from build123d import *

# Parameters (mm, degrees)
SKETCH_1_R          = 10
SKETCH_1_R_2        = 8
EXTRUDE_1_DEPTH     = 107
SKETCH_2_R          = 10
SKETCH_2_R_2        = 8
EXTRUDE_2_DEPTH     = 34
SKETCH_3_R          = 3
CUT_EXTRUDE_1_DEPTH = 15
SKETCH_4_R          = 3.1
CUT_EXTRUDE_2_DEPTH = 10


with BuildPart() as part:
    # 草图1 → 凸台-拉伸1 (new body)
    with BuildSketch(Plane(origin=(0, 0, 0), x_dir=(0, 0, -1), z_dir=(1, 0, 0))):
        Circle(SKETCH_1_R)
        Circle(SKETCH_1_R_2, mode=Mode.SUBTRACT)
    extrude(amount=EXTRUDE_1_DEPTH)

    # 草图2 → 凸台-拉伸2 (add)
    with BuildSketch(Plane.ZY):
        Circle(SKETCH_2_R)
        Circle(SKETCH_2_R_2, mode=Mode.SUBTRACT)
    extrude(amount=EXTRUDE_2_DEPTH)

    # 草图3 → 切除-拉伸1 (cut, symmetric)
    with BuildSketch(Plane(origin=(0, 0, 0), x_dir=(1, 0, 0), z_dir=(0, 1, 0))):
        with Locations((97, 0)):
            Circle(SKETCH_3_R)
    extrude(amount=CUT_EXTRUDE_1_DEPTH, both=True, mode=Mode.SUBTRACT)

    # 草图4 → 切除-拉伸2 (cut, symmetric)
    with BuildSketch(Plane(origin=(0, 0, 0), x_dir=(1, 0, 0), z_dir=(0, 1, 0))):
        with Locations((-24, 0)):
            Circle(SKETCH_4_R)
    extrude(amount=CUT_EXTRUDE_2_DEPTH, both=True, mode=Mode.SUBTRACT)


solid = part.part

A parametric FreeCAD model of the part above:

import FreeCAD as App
import Part
import Sketcher
Q = App.Units.Quantity

doc = App.newDocument("Part")
body = doc.addObject("PartDesign::Body", "Body")

sketch1 = body.newObject("Sketcher::SketchObject", "Sketch")
sketch1.AttachmentSupport = (doc.getObject("YZ_Plane"), [""])
sketch1.MapMode = "FlatFace"
sketch1.addGeometry([
    Part.Circle(App.Vector(0, 0, 0), App.Vector(0, 0, 1), 10),
    Part.Circle(App.Vector(0, 0, 0), App.Vector(0, 0, 1), 8),
], False)
sketch1.addConstraint([
    Sketcher.Constraint("Coincident", 0, 3, -1, 1),
    Sketcher.Constraint("Coincident", 1, 3, -1, 1),
    Sketcher.Constraint("Diameter", 0, Q("20 mm")),
    Sketcher.Constraint("Diameter", 1, Q("16 mm")),
])
pad1 = body.newObject("PartDesign::Pad", "Pad")
pad1.Profile = sketch1
pad1.Length = 107

sketch2 = body.newObject("Sketcher::SketchObject", "Sketch001")
sketch2.AttachmentSupport = (doc.getObject("YZ_Plane"), [""])
sketch2.MapMode = "FlatFace"
sketch2.addGeometry([
    Part.Circle(App.Vector(0, 0, 0), App.Vector(0, 0, 1), 10),
    Part.Circle(App.Vector(0, 0, 0), App.Vector(0, 0, 1), 8),
], False)
sketch2.addConstraint([
    Sketcher.Constraint("Coincident", 0, 3, -1, 1),
    Sketcher.Constraint("Coincident", 1, 3, -1, 1),
    Sketcher.Constraint("Diameter", 0, Q("20 mm")),
    Sketcher.Constraint("Diameter", 1, Q("16 mm")),
])
pad2 = body.newObject("PartDesign::Pad", "Pad001")
pad2.Profile = sketch2
pad2.Length = 34
pad2.Reversed = True

sketch3 = body.newObject("Sketcher::SketchObject", "Sketch002")
sketch3.AttachmentSupport = (doc.getObject("XZ_Plane"), [""])
sketch3.MapMode = "FlatFace"
sketch3.addGeometry(Part.Circle(App.Vector(97, 0, 0), App.Vector(0, 0, 1), 3), False)
sketch3.addConstraint([
    Sketcher.Constraint("PointOnObject", 0, 3, -1),
    Sketcher.Constraint("Diameter", 0, Q("6 mm")),
    Sketcher.Constraint("DistanceX", -1, 1, 0, 3, Q("97 mm")),
])
pocket1 = body.newObject("PartDesign::Pocket", "Pocket")
pocket1.Profile = sketch3
pocket1.Length = 30
pocket1.Midplane = True

sketch4 = body.newObject("Sketcher::SketchObject", "Sketch003")
sketch4.AttachmentSupport = (doc.getObject("XZ_Plane"), [""])
sketch4.MapMode = "FlatFace"
sketch4.addGeometry(Part.Circle(App.Vector(-24, 0, 0), App.Vector(0, 0, 1), 3.1), False)
sketch4.addConstraint([
    Sketcher.Constraint("PointOnObject", 0, 3, -1),
    Sketcher.Constraint("Diameter", 0, Q("6.2 mm")),
    Sketcher.Constraint("DistanceX", 0, 3, -1, 1, Q("24 mm")),
])
pocket2 = body.newObject("PartDesign::Pocket", "Pocket001")
pocket2.Profile = sketch4
pocket2.Length = 20
pocket2.Midplane = True

doc.recompute()
